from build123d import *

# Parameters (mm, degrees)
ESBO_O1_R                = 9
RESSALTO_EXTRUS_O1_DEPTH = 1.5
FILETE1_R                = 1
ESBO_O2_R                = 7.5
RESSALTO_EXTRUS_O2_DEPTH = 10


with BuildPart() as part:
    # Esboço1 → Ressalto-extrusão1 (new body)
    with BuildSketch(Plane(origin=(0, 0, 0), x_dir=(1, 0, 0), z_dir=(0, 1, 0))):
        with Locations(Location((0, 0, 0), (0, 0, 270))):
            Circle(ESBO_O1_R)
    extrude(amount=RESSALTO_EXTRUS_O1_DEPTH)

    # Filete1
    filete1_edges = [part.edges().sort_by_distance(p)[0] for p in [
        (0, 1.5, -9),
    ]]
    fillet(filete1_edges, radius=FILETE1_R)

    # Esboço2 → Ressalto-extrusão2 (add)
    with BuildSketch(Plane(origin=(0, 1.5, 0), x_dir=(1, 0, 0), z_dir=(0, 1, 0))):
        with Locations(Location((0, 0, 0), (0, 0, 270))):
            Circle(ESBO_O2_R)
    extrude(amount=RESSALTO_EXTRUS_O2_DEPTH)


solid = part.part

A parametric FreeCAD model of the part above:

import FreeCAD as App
import Part
import Sketcher

V = App.Vector


def edges_at(feature, points):
    """Names of the edges that pass closest to the given points."""
    edges = feature.Shape.Edges
    near = lambda p: min(range(len(edges)), key=lambda i: edges[i].distToShape(Part.Vertex(*p))[0])
    return sorted({f"Edge{near(p) + 1}" for p in points})

doc = App.newDocument("Part")
body = doc.addObject("PartDesign::Body", "Body")

# Sketch on XZ plane
sketch1 = body.newObject("Sketcher::SketchObject", "Sketch")
sketch1.AttachmentSupport = (doc.getObject("XZ_Plane"), [""])
sketch1.MapMode = "FlatFace"
sketch1.addGeometry(Part.Circle(V(0, 0, 0), V(0, 0, 1), 9), False)
sketch1.addConstraint(Sketcher.Constraint("Coincident", 0, 3, -1, 1))
sketch1.addConstraint(Sketcher.Constraint("Diameter", 0, 18.0))
pad1 = body.newObject("PartDesign::Pad", "Pad")
pad1.Profile = sketch1
pad1.Length = 1.5
pad1.Reversed = True
doc.recompute()

fillet = body.newObject("PartDesign::Fillet", "Fillet")
fillet.Base = (pad1, edges_at(pad1, [(0, 1.5, -9)]))
fillet.Radius = 1

# Sketch on XZ plane
sketch2 = body.newObject("Sketcher::SketchObject", "Sketch001")
sketch2.AttachmentSupport = (doc.getObject("XZ_Plane"), [""])
sketch2.MapMode = "FlatFace"
sketch2.AttachmentOffset = App.Placement(V(0, 0, -1.5), App.Rotation())
sketch2.addGeometry(Part.Circle(V(0, 0, 0), V(0, 0, 1), 8), False)
sketch2.addConstraint(Sketcher.Constraint("Coincident", 0, 3, -1, 1))
sketch2.addConstraint(Sketcher.Constraint("Diameter", 0, 15.0))
pad2 = body.newObject("PartDesign::Pad", "Pad001")
pad2.Profile = sketch2
pad2.Length = 10
pad2.Reversed = True

doc.recompute()
